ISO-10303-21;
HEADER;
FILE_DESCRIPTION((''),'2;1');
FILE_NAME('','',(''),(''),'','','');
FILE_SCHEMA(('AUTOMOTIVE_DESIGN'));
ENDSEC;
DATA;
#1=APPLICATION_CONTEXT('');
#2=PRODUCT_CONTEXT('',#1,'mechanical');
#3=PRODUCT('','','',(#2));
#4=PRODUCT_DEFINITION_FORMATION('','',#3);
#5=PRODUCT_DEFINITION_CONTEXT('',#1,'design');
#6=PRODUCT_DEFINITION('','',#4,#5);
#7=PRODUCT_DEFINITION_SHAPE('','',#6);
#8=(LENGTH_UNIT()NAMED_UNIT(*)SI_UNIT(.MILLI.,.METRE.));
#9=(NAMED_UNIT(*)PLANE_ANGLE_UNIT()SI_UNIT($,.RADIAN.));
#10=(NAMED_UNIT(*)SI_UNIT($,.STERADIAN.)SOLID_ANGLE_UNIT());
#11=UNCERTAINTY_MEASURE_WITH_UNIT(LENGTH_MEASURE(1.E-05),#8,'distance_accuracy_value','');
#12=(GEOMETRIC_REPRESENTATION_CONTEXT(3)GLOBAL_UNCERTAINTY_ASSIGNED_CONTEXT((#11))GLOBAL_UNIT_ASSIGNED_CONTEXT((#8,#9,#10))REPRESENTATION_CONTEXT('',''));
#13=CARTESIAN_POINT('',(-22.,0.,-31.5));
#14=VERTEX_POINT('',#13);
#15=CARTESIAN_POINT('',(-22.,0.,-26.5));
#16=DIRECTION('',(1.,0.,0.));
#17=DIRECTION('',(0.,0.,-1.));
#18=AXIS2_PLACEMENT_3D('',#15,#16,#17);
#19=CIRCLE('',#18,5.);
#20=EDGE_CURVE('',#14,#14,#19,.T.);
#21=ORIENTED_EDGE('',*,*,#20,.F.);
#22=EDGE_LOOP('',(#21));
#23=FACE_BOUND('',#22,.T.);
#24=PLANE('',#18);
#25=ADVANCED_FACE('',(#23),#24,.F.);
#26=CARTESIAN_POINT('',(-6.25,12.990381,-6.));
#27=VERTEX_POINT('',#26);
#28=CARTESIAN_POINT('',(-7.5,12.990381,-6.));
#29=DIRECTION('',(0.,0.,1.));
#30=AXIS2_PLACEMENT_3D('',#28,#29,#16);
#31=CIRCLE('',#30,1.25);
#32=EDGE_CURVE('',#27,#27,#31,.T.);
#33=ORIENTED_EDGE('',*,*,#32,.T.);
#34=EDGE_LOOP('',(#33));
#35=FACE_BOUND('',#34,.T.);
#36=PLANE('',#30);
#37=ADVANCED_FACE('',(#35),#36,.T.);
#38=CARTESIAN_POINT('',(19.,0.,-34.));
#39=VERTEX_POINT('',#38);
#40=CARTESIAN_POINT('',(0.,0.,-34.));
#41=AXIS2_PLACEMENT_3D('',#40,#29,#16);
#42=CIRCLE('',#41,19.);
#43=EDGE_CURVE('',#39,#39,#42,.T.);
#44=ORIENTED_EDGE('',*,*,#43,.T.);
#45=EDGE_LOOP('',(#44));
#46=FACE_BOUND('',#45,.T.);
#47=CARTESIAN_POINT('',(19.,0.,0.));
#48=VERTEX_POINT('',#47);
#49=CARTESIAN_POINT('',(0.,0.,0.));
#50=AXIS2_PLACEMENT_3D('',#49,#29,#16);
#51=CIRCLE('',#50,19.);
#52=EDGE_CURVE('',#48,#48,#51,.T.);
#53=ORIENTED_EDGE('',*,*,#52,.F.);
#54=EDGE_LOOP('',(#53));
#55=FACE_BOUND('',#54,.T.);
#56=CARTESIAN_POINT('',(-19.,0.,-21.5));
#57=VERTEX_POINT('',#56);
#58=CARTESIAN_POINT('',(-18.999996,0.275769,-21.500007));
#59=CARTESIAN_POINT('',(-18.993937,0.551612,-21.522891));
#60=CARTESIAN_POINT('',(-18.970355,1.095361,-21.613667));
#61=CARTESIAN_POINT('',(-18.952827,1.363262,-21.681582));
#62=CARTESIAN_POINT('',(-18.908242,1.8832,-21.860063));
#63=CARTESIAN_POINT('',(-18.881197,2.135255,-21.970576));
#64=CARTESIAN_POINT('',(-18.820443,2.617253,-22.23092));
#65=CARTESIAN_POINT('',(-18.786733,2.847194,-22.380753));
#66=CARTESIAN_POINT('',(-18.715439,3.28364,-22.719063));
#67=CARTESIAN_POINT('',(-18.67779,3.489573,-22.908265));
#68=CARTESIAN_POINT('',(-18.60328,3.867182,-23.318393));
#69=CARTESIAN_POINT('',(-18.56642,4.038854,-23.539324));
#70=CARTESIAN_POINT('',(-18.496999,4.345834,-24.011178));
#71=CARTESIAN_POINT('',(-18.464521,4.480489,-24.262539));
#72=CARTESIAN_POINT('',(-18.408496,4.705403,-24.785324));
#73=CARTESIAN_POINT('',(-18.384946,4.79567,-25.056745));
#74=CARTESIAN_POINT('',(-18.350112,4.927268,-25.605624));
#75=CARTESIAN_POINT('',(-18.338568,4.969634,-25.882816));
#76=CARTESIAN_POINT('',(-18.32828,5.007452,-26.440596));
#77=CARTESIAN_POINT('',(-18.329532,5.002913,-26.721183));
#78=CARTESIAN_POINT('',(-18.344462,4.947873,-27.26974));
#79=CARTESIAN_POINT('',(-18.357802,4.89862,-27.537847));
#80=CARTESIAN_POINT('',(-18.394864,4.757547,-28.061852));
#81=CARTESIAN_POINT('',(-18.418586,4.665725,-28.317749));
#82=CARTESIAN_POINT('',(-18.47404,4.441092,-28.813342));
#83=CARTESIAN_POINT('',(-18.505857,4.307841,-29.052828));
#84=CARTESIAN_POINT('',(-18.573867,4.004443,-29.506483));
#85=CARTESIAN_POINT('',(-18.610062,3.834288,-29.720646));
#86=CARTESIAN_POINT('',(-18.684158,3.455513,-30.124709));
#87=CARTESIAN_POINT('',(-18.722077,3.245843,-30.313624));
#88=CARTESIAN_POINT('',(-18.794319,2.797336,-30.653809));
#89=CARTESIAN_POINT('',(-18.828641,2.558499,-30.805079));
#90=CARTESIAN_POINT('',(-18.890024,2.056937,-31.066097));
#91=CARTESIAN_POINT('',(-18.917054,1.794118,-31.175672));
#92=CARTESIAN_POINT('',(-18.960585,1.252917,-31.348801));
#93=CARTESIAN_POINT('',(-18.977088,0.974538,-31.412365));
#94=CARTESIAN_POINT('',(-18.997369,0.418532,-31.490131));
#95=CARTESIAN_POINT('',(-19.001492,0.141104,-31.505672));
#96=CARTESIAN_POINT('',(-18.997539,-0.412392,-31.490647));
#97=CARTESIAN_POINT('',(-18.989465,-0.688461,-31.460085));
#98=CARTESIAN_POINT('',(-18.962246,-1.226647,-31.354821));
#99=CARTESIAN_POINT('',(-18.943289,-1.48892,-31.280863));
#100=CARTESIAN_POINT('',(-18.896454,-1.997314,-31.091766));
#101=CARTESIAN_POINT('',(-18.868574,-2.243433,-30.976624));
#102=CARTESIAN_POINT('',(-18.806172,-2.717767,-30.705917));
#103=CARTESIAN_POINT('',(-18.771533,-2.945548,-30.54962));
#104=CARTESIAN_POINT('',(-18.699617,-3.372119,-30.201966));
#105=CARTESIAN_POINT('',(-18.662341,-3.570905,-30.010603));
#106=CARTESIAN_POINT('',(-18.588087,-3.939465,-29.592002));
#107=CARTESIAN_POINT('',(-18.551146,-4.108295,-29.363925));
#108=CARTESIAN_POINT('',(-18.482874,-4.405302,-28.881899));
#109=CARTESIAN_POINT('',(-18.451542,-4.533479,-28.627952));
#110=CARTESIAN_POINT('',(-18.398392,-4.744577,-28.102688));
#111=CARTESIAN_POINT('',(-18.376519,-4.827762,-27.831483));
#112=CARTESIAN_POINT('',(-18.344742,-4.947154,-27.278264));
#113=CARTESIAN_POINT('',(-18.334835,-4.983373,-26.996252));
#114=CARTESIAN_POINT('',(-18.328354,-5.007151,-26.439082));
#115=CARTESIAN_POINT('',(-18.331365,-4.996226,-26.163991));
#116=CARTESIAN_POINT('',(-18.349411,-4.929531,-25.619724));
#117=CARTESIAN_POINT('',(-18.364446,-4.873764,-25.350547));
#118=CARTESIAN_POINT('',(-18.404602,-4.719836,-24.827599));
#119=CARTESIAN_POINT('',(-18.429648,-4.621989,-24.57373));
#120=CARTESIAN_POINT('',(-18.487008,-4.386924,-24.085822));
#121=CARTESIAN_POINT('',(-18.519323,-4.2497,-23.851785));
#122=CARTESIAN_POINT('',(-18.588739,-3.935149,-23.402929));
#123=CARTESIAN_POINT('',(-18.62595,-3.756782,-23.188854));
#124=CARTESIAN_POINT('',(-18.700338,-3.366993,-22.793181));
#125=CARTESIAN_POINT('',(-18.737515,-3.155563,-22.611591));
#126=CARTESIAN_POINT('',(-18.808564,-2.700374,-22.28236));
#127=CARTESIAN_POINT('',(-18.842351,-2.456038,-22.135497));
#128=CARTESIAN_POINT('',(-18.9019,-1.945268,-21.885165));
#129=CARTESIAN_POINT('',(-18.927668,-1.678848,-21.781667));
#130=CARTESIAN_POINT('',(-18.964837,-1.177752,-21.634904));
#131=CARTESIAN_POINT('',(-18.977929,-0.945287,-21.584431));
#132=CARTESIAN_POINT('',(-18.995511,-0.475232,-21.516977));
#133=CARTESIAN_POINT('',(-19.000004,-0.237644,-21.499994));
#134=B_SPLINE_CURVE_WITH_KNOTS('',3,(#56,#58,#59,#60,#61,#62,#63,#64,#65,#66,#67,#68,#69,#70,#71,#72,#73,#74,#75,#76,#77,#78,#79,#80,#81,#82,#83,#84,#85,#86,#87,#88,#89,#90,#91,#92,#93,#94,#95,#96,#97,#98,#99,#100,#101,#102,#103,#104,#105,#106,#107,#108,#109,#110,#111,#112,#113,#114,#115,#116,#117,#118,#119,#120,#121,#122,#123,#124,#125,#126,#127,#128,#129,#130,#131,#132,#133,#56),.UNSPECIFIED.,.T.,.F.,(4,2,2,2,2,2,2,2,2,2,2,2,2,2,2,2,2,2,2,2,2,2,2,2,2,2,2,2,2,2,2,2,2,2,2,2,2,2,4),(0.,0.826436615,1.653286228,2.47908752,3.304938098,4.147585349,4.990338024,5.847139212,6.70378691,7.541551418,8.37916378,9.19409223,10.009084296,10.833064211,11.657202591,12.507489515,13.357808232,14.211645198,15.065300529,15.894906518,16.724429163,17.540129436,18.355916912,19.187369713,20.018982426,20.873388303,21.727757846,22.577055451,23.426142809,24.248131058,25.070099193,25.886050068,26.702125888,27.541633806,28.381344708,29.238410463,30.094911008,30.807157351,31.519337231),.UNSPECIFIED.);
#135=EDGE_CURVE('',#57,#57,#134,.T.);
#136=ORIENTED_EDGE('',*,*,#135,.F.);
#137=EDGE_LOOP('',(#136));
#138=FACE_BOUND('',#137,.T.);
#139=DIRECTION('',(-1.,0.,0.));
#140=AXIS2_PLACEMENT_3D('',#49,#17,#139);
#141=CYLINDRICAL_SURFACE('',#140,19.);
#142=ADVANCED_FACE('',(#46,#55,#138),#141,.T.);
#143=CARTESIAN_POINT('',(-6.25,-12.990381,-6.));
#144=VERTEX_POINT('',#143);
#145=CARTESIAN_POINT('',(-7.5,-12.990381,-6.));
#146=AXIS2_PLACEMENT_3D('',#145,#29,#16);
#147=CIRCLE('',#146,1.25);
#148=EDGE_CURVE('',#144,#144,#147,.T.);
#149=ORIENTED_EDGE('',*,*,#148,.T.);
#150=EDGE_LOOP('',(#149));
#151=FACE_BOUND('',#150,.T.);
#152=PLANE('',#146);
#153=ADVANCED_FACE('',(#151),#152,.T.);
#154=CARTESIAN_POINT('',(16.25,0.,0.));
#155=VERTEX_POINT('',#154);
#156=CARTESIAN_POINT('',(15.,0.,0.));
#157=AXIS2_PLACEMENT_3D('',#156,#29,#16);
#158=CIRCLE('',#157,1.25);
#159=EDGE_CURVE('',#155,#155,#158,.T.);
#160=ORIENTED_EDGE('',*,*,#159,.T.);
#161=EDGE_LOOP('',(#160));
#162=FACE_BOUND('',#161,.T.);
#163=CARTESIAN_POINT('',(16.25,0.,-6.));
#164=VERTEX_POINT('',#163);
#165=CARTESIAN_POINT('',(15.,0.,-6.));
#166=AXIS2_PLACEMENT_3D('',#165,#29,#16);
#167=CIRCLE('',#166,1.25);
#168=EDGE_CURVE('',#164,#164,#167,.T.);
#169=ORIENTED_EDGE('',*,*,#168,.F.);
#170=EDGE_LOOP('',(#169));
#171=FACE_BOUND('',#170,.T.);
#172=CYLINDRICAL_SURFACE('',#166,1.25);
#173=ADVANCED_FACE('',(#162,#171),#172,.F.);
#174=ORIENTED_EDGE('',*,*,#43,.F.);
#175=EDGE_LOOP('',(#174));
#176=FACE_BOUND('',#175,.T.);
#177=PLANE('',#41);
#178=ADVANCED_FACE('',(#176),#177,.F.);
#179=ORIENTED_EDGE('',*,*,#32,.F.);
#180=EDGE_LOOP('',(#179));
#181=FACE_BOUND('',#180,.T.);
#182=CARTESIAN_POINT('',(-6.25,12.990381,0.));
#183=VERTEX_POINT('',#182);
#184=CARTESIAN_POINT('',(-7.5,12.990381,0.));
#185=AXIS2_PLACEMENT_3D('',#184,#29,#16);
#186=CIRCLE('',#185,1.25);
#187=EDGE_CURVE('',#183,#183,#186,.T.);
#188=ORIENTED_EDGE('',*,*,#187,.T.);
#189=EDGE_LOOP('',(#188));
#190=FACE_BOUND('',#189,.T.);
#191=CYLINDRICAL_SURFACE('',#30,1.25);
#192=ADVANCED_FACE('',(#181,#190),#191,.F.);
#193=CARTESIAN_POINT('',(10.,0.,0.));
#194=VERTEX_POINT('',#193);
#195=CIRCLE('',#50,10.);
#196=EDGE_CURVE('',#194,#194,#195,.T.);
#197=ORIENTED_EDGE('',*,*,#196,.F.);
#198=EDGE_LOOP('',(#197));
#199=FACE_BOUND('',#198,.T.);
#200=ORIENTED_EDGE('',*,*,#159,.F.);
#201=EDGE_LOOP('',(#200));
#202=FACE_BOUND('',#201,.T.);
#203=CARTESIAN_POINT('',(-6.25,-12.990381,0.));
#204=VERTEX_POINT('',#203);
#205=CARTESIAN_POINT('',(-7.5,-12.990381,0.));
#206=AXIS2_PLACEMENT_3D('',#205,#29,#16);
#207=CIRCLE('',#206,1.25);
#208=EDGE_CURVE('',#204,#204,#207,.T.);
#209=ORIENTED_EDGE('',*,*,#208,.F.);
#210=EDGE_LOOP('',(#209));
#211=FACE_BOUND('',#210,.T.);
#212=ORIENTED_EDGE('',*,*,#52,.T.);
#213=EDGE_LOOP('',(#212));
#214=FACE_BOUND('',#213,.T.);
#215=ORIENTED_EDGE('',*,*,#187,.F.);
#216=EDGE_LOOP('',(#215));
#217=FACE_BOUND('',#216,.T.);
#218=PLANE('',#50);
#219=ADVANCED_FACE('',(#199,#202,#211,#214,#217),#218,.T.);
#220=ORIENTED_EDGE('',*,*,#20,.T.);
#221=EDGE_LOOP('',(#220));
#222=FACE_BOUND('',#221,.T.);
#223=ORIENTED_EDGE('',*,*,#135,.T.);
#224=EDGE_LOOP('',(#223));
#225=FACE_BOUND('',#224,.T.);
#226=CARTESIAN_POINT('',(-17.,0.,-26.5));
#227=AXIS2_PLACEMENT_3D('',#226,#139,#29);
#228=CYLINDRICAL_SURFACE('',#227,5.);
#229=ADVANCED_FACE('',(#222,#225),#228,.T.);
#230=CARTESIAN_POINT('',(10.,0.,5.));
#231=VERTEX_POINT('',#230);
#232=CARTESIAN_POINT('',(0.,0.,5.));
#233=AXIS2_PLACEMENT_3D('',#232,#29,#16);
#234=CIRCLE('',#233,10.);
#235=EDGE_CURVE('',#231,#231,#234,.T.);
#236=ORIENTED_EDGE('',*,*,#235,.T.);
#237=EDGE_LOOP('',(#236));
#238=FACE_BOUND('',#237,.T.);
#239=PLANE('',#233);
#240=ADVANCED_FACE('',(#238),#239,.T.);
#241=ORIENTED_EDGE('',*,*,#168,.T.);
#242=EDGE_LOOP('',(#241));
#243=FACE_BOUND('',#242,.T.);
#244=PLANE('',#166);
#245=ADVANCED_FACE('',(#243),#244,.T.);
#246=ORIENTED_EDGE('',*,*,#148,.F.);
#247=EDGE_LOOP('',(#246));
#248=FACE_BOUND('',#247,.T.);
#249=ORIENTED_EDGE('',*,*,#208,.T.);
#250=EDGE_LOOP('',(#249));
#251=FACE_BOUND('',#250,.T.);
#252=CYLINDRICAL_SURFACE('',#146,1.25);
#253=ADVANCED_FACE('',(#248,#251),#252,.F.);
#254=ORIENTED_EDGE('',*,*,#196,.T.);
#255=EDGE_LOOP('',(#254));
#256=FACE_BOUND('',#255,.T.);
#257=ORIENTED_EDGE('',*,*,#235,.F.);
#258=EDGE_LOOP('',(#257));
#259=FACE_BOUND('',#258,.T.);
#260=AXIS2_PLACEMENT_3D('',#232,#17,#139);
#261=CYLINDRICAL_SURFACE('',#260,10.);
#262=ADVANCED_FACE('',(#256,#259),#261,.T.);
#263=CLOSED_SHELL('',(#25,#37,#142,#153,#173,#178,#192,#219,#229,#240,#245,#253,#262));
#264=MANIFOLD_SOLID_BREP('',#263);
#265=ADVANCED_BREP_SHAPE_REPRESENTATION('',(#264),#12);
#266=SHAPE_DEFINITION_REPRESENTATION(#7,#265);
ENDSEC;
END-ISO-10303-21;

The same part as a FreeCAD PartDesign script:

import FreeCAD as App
import Part
import Sketcher

V = App.Vector

doc = App.newDocument("Part")
body = doc.addObject("PartDesign::Body", "Body")

# Sketch on XY plane
sketch1 = body.newObject("Sketcher::SketchObject", "Sketch")
sketch1.AttachmentSupport = (doc.getObject("XY_Plane"), [""])
sketch1.MapMode = "FlatFace"
sketch1.AttachmentOffset = App.Placement(V(0, 0, -34), App.Rotation())
sketch1.addGeometry(Part.Circle(V(0, 0, 0), V(0, 0, 1), 19), False)
sketch1.addConstraint(Sketcher.Constraint("Coincident", 0, 3, -1, 1))
sketch1.addConstraint(Sketcher.Constraint("Diameter", 0, 38.0))
pad1 = body.newObject("PartDesign::Pad", "Pad")
pad1.Profile = sketch1
pad1.Length = 34

# Sketch on XY plane
sketch2 = body.newObject("Sketcher::SketchObject", "Sketch001")
sketch2.AttachmentSupport = (doc.getObject("XY_Plane"), [""])
sketch2.MapMode = "FlatFace"
sketch2.addGeometry(Part.Circle(V(0, 0, 0), V(0, 0, 1), 10), False)
sketch2.addConstraint(Sketcher.Constraint("Coincident", 0, 3, -1, 1))
sketch2.addConstraint(Sketcher.Constraint("Diameter", 0, 20.0))
pad2 = body.newObject("PartDesign::Pad", "Pad001")
pad2.Profile = sketch2
pad2.Length = 5

# Sketch on YZ plane
sketch3 = body.newObject("Sketcher::SketchObject", "Sketch002")
sketch3.AttachmentSupport = (doc.getObject("YZ_Plane"), [""])
sketch3.MapMode = "FlatFace"
sketch3.AttachmentOffset = App.Placement(V(0, 0, -22), App.Rotation())
sketch3.addGeometry(Part.Circle(V(0, -26, 0), V(0, 0, 1), 5), False)
sketch3.addConstraint(Sketcher.Constraint("PointOnObject", 0, 3, -2))
sketch3.addConstraint(Sketcher.Constraint("Diameter", 0, 10.0))
sketch3.addConstraint(Sketcher.Constraint("DistanceY", 0, 3, -1, 1, 26.5))
pad3 = body.newObject("PartDesign::Pad", "Pad002")
pad3.Profile = sketch3
pad3.Length = 5

# Sketch on XY plane
sketch4 = body.newObject("Sketcher::SketchObject", "Sketch003")
sketch4.AttachmentSupport = (doc.getObject("XY_Plane"), [""])
sketch4.MapMode = "FlatFace"
sketch4.addGeometry(Part.Circle(V(15, 0, 0), V(0, 0, 1), 1.2), False)
sketch4.addGeometry(Part.Circle(V(-7.5, 13, 0), V(0, 0, 1), 1.2), False)
sketch4.addGeometry(Part.Circle(V(-7.5, -13, 0), V(0, 0, 1), 1.2), False)
sketch4.addConstraint(Sketcher.Constraint("Equal", 0, 1))
sketch4.addConstraint(Sketcher.Constraint("Equal", 1, 2))
sketch4.addConstraint(Sketcher.Constraint("Symmetric", 1, 3, 2, 3, -1))
sketch4.addConstraint(Sketcher.Constraint("PointOnObject", 0, 3, -1))
sketch4.addConstraint(Sketcher.Constraint("Diameter", 0, 2.5))
sketch4.addConstraint(Sketcher.Constraint("DistanceX", -1, 1, 0, 3, 15.0))
sketch4.addConstraint(Sketcher.Constraint("DistanceX", 1, 3, -1, 1, 7.5))
sketch4.addConstraint(Sketcher.Constraint("DistanceY", -1, 1, 1, 3, 12.990381))
pocket1 = body.newObject("PartDesign::Pocket", "Pocket")
pocket1.Profile = sketch4
pocket1.Length = 6

doc.recompute()
